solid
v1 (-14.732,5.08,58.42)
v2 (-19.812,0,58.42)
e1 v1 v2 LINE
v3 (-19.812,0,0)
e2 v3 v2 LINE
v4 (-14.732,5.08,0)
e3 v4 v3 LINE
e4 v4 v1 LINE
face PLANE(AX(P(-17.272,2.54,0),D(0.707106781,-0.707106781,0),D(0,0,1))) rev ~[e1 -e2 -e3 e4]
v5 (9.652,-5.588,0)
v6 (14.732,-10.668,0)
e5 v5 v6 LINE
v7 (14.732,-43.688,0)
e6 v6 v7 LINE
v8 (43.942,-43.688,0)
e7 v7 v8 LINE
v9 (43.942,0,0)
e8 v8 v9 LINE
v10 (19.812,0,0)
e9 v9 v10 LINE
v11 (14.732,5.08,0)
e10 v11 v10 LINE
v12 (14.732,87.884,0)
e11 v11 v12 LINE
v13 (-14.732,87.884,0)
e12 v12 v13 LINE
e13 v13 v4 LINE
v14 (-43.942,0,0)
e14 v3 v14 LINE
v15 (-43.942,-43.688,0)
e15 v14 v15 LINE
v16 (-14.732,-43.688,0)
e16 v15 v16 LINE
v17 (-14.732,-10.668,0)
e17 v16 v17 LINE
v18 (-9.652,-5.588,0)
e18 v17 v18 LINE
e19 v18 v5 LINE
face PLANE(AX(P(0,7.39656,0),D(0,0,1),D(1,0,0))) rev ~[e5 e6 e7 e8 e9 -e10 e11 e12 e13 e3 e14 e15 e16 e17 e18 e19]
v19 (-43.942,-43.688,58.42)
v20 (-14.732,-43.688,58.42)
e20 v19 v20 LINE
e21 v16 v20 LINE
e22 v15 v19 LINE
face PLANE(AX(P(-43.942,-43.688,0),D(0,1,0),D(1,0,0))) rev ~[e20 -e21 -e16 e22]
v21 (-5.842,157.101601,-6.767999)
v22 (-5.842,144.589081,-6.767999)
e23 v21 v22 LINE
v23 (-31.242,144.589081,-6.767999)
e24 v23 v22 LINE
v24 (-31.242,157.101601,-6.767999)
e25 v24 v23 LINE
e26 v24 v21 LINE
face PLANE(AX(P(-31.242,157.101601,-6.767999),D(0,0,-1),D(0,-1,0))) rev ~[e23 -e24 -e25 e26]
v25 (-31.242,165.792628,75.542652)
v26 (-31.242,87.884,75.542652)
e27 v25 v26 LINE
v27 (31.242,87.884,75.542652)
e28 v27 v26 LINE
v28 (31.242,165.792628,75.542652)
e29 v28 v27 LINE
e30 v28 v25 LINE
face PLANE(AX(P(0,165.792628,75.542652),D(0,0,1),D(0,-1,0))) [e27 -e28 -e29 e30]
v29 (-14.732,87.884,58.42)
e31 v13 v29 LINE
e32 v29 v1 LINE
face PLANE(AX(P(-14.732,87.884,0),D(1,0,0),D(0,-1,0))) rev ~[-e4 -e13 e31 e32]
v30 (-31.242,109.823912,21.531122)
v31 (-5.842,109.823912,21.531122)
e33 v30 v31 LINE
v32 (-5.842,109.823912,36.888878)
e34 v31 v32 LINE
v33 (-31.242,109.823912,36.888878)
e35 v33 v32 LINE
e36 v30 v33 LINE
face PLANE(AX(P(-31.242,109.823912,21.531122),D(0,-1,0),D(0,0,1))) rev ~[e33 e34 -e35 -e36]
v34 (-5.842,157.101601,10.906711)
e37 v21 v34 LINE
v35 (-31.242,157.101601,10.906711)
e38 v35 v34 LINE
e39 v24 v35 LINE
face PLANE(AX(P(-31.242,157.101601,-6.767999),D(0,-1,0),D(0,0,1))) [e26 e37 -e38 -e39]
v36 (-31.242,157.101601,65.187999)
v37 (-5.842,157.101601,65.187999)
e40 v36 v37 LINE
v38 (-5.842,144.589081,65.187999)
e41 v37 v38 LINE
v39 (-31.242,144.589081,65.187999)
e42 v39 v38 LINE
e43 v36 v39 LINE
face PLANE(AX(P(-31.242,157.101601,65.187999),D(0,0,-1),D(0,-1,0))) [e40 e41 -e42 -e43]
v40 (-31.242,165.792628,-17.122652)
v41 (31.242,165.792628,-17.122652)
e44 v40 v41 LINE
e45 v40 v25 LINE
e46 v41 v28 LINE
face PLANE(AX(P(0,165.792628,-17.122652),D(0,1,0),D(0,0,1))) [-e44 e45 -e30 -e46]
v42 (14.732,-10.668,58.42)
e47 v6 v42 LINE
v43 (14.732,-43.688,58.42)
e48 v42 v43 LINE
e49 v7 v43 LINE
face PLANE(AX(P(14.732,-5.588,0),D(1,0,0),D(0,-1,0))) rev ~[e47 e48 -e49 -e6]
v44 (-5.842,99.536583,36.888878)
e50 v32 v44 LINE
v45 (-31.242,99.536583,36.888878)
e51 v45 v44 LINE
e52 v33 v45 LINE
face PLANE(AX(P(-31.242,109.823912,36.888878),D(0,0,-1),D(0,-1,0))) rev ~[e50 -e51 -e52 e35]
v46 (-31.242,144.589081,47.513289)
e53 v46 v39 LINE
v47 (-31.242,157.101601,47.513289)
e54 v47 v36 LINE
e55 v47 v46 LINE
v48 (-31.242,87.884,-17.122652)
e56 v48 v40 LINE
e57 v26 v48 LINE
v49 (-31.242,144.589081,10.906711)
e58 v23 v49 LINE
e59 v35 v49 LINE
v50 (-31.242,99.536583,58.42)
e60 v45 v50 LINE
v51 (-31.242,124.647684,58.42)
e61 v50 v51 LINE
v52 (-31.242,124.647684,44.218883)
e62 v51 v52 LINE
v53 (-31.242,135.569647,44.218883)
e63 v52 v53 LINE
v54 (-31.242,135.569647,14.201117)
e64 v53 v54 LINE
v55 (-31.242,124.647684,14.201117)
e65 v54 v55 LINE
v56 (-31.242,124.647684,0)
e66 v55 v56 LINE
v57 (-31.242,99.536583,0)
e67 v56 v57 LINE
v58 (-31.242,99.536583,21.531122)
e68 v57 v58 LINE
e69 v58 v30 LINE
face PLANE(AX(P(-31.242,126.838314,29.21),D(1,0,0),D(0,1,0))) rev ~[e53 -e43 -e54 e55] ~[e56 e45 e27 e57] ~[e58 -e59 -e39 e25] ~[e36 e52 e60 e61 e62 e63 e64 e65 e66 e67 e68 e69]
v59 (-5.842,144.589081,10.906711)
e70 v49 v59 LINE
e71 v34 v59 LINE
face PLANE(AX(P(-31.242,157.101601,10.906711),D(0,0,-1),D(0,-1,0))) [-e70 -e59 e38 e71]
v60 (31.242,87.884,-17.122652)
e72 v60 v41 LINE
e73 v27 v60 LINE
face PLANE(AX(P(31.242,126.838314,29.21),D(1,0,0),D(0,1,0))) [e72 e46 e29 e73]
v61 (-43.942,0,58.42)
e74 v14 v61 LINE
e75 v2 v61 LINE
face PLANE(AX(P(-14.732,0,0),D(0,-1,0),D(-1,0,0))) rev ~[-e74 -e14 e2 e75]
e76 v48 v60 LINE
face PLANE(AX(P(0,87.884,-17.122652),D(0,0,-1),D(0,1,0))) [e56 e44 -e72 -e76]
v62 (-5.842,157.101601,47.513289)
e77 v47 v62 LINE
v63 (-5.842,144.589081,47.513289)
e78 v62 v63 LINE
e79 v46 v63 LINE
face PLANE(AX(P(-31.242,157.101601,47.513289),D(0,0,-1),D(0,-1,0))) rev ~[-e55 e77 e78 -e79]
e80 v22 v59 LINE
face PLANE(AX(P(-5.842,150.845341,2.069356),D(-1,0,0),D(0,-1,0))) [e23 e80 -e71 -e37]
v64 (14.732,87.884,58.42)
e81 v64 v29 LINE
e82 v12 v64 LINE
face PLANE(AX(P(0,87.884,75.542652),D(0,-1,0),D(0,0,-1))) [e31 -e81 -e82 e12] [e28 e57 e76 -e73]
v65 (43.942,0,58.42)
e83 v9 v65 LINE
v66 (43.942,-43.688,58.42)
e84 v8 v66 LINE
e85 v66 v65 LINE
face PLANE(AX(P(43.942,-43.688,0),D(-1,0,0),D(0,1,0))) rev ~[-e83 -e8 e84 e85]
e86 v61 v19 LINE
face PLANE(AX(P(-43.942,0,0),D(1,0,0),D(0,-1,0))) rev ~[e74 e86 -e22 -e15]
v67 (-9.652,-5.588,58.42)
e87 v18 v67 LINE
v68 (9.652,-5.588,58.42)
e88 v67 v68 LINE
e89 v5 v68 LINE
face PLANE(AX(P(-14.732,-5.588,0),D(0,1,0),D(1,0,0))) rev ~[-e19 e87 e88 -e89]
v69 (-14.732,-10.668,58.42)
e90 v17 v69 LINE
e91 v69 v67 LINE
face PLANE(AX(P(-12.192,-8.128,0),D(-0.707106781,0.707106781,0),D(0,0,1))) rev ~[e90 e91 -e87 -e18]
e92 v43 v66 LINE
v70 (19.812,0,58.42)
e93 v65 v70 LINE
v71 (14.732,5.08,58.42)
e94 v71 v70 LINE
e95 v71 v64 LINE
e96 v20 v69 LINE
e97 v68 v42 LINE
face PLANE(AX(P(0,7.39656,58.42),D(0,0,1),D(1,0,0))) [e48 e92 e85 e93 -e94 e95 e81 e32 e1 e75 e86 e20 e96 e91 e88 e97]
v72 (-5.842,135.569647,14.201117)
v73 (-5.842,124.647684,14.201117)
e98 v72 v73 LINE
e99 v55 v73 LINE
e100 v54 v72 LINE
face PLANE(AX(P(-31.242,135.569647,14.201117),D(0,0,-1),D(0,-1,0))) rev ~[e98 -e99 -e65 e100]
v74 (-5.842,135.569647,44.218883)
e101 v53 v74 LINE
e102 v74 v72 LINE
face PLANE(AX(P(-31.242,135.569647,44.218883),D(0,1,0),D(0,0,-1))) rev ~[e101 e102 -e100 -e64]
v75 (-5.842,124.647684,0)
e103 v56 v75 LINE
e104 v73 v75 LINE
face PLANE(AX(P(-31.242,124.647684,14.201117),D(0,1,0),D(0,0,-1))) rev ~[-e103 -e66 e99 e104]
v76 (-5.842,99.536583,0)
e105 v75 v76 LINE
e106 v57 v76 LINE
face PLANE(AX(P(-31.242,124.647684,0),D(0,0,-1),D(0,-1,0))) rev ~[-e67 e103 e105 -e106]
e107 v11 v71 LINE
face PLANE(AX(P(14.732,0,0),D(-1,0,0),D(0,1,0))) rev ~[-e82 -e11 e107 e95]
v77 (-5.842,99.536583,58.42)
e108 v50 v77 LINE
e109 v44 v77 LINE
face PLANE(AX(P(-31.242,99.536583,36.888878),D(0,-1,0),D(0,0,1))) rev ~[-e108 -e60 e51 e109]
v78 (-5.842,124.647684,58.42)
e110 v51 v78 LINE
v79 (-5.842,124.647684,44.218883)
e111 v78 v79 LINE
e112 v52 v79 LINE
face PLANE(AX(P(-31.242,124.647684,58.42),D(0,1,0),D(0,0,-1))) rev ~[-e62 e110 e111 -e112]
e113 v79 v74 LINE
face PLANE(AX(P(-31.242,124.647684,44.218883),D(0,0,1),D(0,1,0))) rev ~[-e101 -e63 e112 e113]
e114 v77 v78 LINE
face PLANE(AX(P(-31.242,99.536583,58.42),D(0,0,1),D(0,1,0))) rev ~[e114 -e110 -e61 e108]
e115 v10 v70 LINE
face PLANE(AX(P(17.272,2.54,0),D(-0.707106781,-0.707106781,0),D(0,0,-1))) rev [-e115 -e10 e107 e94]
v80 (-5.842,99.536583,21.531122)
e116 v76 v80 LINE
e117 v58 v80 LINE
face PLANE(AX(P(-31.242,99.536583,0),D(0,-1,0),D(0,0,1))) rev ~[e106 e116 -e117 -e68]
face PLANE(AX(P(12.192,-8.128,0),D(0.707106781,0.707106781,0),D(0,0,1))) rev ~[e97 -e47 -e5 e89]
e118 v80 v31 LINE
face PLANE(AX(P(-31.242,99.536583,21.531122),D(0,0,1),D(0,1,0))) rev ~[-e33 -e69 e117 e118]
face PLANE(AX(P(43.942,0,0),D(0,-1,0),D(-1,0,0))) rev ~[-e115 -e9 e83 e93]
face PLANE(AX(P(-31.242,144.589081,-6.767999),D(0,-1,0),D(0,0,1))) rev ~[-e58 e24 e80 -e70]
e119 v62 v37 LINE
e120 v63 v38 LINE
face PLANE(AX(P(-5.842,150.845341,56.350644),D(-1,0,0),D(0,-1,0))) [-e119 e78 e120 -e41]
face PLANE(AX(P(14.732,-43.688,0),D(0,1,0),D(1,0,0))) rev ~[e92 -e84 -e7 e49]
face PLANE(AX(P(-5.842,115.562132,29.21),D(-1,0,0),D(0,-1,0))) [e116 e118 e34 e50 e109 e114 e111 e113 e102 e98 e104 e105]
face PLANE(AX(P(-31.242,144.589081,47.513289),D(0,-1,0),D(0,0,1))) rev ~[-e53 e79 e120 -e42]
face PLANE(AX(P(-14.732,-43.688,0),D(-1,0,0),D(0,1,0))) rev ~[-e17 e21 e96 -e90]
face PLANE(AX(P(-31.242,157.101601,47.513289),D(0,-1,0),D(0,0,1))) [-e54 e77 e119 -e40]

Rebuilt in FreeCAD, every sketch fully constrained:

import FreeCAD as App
import Part
import Sketcher
from FreeCAD import Vector
Q = App.Units.Quantity


def edges_at(feature, points):
    """Names of the edges that pass closest to the given points."""
    edges = feature.Shape.Edges
    near = lambda p: min(range(len(edges)), key=lambda i: edges[i].distToShape(Part.Vertex(*p))[0])
    return sorted({f"Edge{near(p) + 1}" for p in points})

doc = App.newDocument("Part")
body = doc.addObject("PartDesign::Body", "Body")

sketch1 = body.newObject("Sketcher::SketchObject", "Sketch")
sketch1.AttachmentSupport = (doc.getObject("XY_Plane"), [""])
sketch1.MapMode = "FlatFace"
sketch1.addGeometry(Part.LineSegment(Vector(-44, 0, 0), Vector(-44, -44, 0)), False)
sketch1.addGeometry(Part.LineSegment(Vector(-44, -44, 0), Vector(-15, -44, 0)), False)
sketch1.addGeometry(Part.LineSegment(Vector(-15, -44, 0), Vector(-15, -6, 0)), False)
sketch1.addGeometry(Part.LineSegment(Vector(-15, -6, 0), Vector(15, -6, 0)), False)
sketch1.addGeometry(Part.LineSegment(Vector(15, -6, 0), Vector(15, -44, 0)), False)
sketch1.addGeometry(Part.LineSegment(Vector(15, -44, 0), Vector(44, -44, 0)), False)
sketch1.addGeometry(Part.LineSegment(Vector(44, -44, 0), Vector(44, 0, 0)), False)
sketch1.addGeometry(Part.LineSegment(Vector(44, 0, 0), Vector(15, 0, 0)), False)
sketch1.addGeometry(Part.LineSegment(Vector(15, 0, 0), Vector(15, 88, 0)), False)
sketch1.addGeometry(Part.LineSegment(Vector(15, 88, 0), Vector(-15, 88, 0)), False)
sketch1.addGeometry(Part.LineSegment(Vector(-15, 88, 0), Vector(-15, 0, 0)), False)
sketch1.addGeometry(Part.LineSegment(Vector(-15, 0, 0), Vector(-44, 0, 0)), False)
sketch1.addConstraint(Sketcher.Constraint("Coincident", 0, 2, 1, 1))
sketch1.addConstraint(Sketcher.Constraint("Coincident", 1, 2, 2, 1))
sketch1.addConstraint(Sketcher.Constraint("Coincident", 2, 2, 3, 1))
sketch1.addConstraint(Sketcher.Constraint("Coincident", 3, 2, 4, 1))
sketch1.addConstraint(Sketcher.Constraint("Coincident", 4, 2, 5, 1))
sketch1.addConstraint(Sketcher.Constraint("Coincident", 5, 2, 6, 1))
sketch1.addConstraint(Sketcher.Constraint("Coincident", 6, 2, 7, 1))
sketch1.addConstraint(Sketcher.Constraint("Coincident", 7, 2, 8, 1))
sketch1.addConstraint(Sketcher.Constraint("Coincident", 8, 2, 9, 1))
sketch1.addConstraint(Sketcher.Constraint("Coincident", 9, 2, 10, 1))
sketch1.addConstraint(Sketcher.Constraint("Coincident", 10, 2, 11, 1))
sketch1.addConstraint(Sketcher.Constraint("Coincident", 11, 2, 0, 1))
sketch1.addConstraint(Sketcher.Constraint("Vertical", 0))
sketch1.addConstraint(Sketcher.Constraint("Horizontal", 1))
sketch1.addConstraint(Sketcher.Constraint("Vertical", 2))
sketch1.addConstraint(Sketcher.Constraint("Horizontal", 3))
sketch1.addConstraint(Sketcher.Constraint("Vertical", 4))
sketch1.addConstraint(Sketcher.Constraint("Horizontal", 5))
sketch1.addConstraint(Sketcher.Constraint("Vertical", 6))
sketch1.addConstraint(Sketcher.Constraint("Horizontal", 7))
sketch1.addConstraint(Sketcher.Constraint("Vertical", 8))
sketch1.addConstraint(Sketcher.Constraint("Horizontal", 9))
sketch1.addConstraint(Sketcher.Constraint("Vertical", 10))
sketch1.addConstraint(Sketcher.Constraint("Horizontal", 11))
sketch1.addConstraint(Sketcher.Constraint("Symmetric", 7, 2, 10, 2, -1, 1))
sketch1.addConstraint(Sketcher.Constraint("Symmetric", 1, 2, 4, 2, -2))
sketch1.addConstraint(Sketcher.Constraint("Symmetric", 6, 2, 11, 2, -2))
sketch1.addConstraint(Sketcher.Constraint("Vertical", 4, 2, 7, 2))
sketch1.addConstraint(Sketcher.Constraint("DistanceY", 2, 1, 2, 2, Q("1.5 in")))
sketch1.addConstraint(Sketcher.Constraint("DistanceX", 1, 1, 1, 2, Q("1.15 in")))
sketch1.addConstraint(Sketcher.Constraint("DistanceX", 3, 1, 3, 2, Q("1.16 in")))
sketch1.addConstraint(Sketcher.Constraint("DistanceY", 0, 2, 0, 1, Q("1.72 in")))
sketch1.addConstraint(Sketcher.Constraint("DistanceY", 8, 1, 8, 2, Q("3.46 in")))
pad1 = body.newObject("PartDesign::Pad", "Pad")
pad1.Profile = sketch1
pad1.Length = Q("2.3 in")

sketch2 = body.newObject("Sketcher::SketchObject", "Sketch001")
sketch2.AttachmentSupport = (doc.getObject("YZ_Plane"), [""])
sketch2.MapMode = "FlatFace"
sketch2.addGeometry(Part.LineSegment(Vector(88, 76, 0), Vector(88, -17, 0)), False)
sketch2.addGeometry(Part.LineSegment(Vector(88, -17, 0), Vector(166, -17, 0)), False)
sketch2.addGeometry(Part.LineSegment(Vector(166, -17, 0), Vector(166, 76, 0)), False)
sketch2.addGeometry(Part.LineSegment(Vector(166, 76, 0), Vector(88, 76, 0)), False)
sketch2.addConstraint(Sketcher.Constraint("Coincident", 0, 2, 1, 1))
sketch2.addConstraint(Sketcher.Constraint("Coincident", 1, 2, 2, 1))
sketch2.addConstraint(Sketcher.Constraint("Coincident", 2, 2, 3, 1))
sketch2.addConstraint(Sketcher.Constraint("Coincident", 3, 2, 0, 1))
sketch2.addConstraint(Sketcher.Constraint("Vertical", 0))
sketch2.addConstraint(Sketcher.Constraint("Horizontal", 1))
sketch2.addConstraint(Sketcher.Constraint("Vertical", 2))
sketch2.addConstraint(Sketcher.Constraint("Horizontal", 3))
sketch2.addConstraint(Sketcher.Constraint("DistanceX", -1, 1, 0, 2, Q("3.46 in")))
sketch2.addConstraint(Sketcher.Constraint("DistanceX", 1, 1, 1, 2, Q("77.908628 mm")))
sketch2.addConstraint(Sketcher.Constraint("DistanceY", 0, 2, 0, 1, Q("92.665304 mm")))
sketch2.addConstraint(Sketcher.Constraint("DistanceY", 0, 2, -1, 1, Q("17.122652 mm")))
pad2 = body.newObject("PartDesign::Pad", "Pad001")
pad2.Profile = sketch2
pad2.Length = Q("2.46 in")
pad2.Midplane = True

sketch3 = body.newObject("Sketcher::SketchObject", "Sketch002")
sketch3.AttachmentSupport = (doc.getObject("YZ_Plane"), [""])
sketch3.MapMode = "FlatFace"
sketch3.AttachmentOffset = App.Placement(Vector(0, 0, -1.23 * 25.4), App.Rotation())
sketch3.addGeometry(Part.LineSegment(Vector(157, 11, 0), Vector(157, -7, 0)), False)
sketch3.addGeometry(Part.LineSegment(Vector(157, -7, 0), Vector(145, -7, 0)), False)
sketch3.addGeometry(Part.LineSegment(Vector(145, -7, 0), Vector(145, 11, 0)), False)
sketch3.addGeometry(Part.LineSegment(Vector(145, 11, 0), Vector(157, 11, 0)), False)
sketch3.addGeometry(Part.LineSegment(Vector(136, 44, 0), Vector(136, 14, 0)), False)
sketch3.addGeometry(Part.LineSegment(Vector(136, 14, 0), Vector(125, 14, 0)), False)
sketch3.addGeometry(Part.LineSegment(Vector(125, 14, 0), Vector(125, 0, 0)), False)
sketch3.addGeometry(Part.LineSegment(Vector(125, 0, 0), Vector(100, 0, 0)), False)
sketch3.addGeometry(Part.LineSegment(Vector(100, 0, 0), Vector(100, 22, 0)), False)
sketch3.addGeometry(Part.LineSegment(Vector(100, 22, 0), Vector(110, 22, 0)), False)
sketch3.addGeometry(Part.LineSegment(Vector(110, 22, 0), Vector(110, 37, 0)), False)
sketch3.addGeometry(Part.LineSegment(Vector(110, 37, 0), Vector(100, 37, 0)), False)
sketch3.addGeometry(Part.LineSegment(Vector(100, 37, 0), Vector(100, 58, 0)), False)
sketch3.addGeometry(Part.LineSegment(Vector(100, 58, 0), Vector(125, 58, 0)), False)
sketch3.addGeometry(Part.LineSegment(Vector(125, 58, 0), Vector(125, 44, 0)), False)
sketch3.addGeometry(Part.LineSegment(Vector(125, 44, 0), Vector(136, 44, 0)), False)
sketch3.addGeometry(Part.LineSegment(Vector(157, 65, 0), Vector(157, 48, 0)), False)
sketch3.addGeometry(Part.LineSegment(Vector(157, 48, 0), Vector(145, 48, 0)), False)
sketch3.addGeometry(Part.LineSegment(Vector(145, 48, 0), Vector(145, 65, 0)), False)
sketch3.addGeometry(Part.LineSegment(Vector(145, 65, 0), Vector(157, 65, 0)), False)
sketch3.addConstraint(Sketcher.Constraint("Coincident", 0, 2, 1, 1))
sketch3.addConstraint(Sketcher.Constraint("Coincident", 1, 2, 2, 1))
sketch3.addConstraint(Sketcher.Constraint("Coincident", 2, 2, 3, 1))
sketch3.addConstraint(Sketcher.Constraint("Coincident", 3, 2, 0, 1))
sketch3.addConstraint(Sketcher.Constraint("Coincident", 4, 2, 5, 1))
sketch3.addConstraint(Sketcher.Constraint("Coincident", 5, 2, 6, 1))
sketch3.addConstraint(Sketcher.Constraint("Coincident", 6, 2, 7, 1))
sketch3.addConstraint(Sketcher.Constraint("Coincident", 7, 2, 8, 1))
sketch3.addConstraint(Sketcher.Constraint("Coincident", 8, 2, 9, 1))
sketch3.addConstraint(Sketcher.Constraint("Coincident", 9, 2, 10, 1))
sketch3.addConstraint(Sketcher.Constraint("Coincident", 10, 2, 11, 1))
sketch3.addConstraint(Sketcher.Constraint("Coincident", 11, 2, 12, 1))
sketch3.addConstraint(Sketcher.Constraint("Coincident", 12, 2, 13, 1))
sketch3.addConstraint(Sketcher.Constraint("Coincident", 13, 2, 14, 1))
sketch3.addConstraint(Sketcher.Constraint("Coincident", 14, 2, 15, 1))
sketch3.addConstraint(Sketcher.Constraint("Coincident", 15, 2, 4, 1))
sketch3.addConstraint(Sketcher.Constraint("Coincident", 16, 2, 17, 1))
sketch3.addConstraint(Sketcher.Constraint("Coincident", 17, 2, 18, 1))
sketch3.addConstraint(Sketcher.Constraint("Coincident", 18, 2, 19, 1))
sketch3.addConstraint(Sketcher.Constraint("Coincident", 19, 2, 16, 1))
sketch3.addConstraint(Sketcher.Constraint("Vertical", 0))
sketch3.addConstraint(Sketcher.Constraint("Horizontal", 1))
sketch3.addConstraint(Sketcher.Constraint("Vertical", 2))
sketch3.addConstraint(Sketcher.Constraint("Horizontal", 3))
sketch3.addConstraint(Sketcher.Constraint("Vertical", 4))
sketch3.addConstraint(Sketcher.Constraint("Horizontal", 5))
sketch3.addConstraint(Sketcher.Constraint("Vertical", 6))
sketch3.addConstraint(Sketcher.Constraint("Horizontal", 7))
sketch3.addConstraint(Sketcher.Constraint("Vertical", 8))
sketch3.addConstraint(Sketcher.Constraint("Horizontal", 9))
sketch3.addConstraint(Sketcher.Constraint("Vertical", 10))
sketch3.addConstraint(Sketcher.Constraint("Horizontal", 11))
sketch3.addConstraint(Sketcher.Constraint("Vertical", 12))
sketch3.addConstraint(Sketcher.Constraint("Horizontal", 13))
sketch3.addConstraint(Sketcher.Constraint("Vertical", 14))
sketch3.addConstraint(Sketcher.Constraint("Horizontal", 15))
sketch3.addConstraint(Sketcher.Constraint("Vertical", 16))
sketch3.addConstraint(Sketcher.Constraint("Horizontal", 17))
sketch3.addConstraint(Sketcher.Constraint("Vertical", 18))
sketch3.addConstraint(Sketcher.Constraint("Horizontal", 19))
sketch3.addConstraint(Sketcher.Constraint("PointOnObject", 6, 2, -1))
sketch3.addConstraint(Sketcher.Constraint("Vertical", 8, 2, 11, 2))
sketch3.addConstraint(Sketcher.Constraint("Vertical", 6, 2, 13, 2))
sketch3.addConstraint(Sketcher.Constraint("Vertical", 3, 2, 16, 2))
sketch3.addConstraint(Sketcher.Constraint("Vertical", 2, 2, 17, 2))
sketch3.addConstraint(Sketcher.Constraint("Equal", 8, 12))
sketch3.addConstraint(Sketcher.Constraint("Equal", 6, 14))
sketch3.addConstraint(Sketcher.Constraint("Equal", 2, 16))
sketch3.addConstraint(Sketcher.Constraint("DistanceY", -1, 1, 12, 2, Q("2.3 in")))
sketch3.addConstraint(Sketcher.Constraint("DistanceX", 7, 2, 7, 1, Q("25.111101 mm")))
sketch3.addConstraint(Sketcher.Constraint("DistanceX", 1, 2, 1, 1, Q("12.51252 mm")))
sketch3.addConstraint(Sketcher.Constraint("DistanceX", 9, 1, 9, 2, Q("10.287329 mm")))
sketch3.addConstraint(Sketcher.Constraint("DistanceY", 0, 2, 0, 1, Q("17.674709 mm")))
sketch3.addConstraint(Sketcher.Constraint("DistanceY", 8, 1, 8, 2, Q("21.531122 mm")))
sketch3.addConstraint(Sketcher.Constraint("DistanceX", -1, 1, 0, 2, Q("157.101601 mm")))
sketch3.addConstraint(Sketcher.Constraint("DistanceY", 0, 2, -1, 1, Q("6.767999 mm")))
sketch3.addConstraint(Sketcher.Constraint("DistanceY", -1, 1, 18, 2, Q("65.187999 mm")))
sketch3.addConstraint(Sketcher.Constraint("DistanceX", 5, 2, 5, 1, Q("10.921963 mm")))
sketch3.addConstraint(Sketcher.Constraint("DistanceY", 4, 2, 4, 1, Q("30.017766 mm")))
sketch3.addConstraint(Sketcher.Constraint("DistanceX", -1, 1, 4, 2, Q("135.569647 mm")))
pocket1 = body.newObject("PartDesign::Pocket", "Pocket")
pocket1.Profile = sketch3
pocket1.Length = Q("1 in")
pocket1.Reversed = True
doc.recompute()

chamfer = body.newObject("PartDesign::Chamfer", "Chamfer")
chamfer.Base = (pocket1, edges_at(pocket1, [
    (14.732, -5.588, 29.21),
    (-14.732, -5.588, 29.21),
    (-14.732, 0, 29.21),
    (14.732, 0, 29.21),
]))
chamfer.Size = Q("0.2 in")

doc.recompute()
